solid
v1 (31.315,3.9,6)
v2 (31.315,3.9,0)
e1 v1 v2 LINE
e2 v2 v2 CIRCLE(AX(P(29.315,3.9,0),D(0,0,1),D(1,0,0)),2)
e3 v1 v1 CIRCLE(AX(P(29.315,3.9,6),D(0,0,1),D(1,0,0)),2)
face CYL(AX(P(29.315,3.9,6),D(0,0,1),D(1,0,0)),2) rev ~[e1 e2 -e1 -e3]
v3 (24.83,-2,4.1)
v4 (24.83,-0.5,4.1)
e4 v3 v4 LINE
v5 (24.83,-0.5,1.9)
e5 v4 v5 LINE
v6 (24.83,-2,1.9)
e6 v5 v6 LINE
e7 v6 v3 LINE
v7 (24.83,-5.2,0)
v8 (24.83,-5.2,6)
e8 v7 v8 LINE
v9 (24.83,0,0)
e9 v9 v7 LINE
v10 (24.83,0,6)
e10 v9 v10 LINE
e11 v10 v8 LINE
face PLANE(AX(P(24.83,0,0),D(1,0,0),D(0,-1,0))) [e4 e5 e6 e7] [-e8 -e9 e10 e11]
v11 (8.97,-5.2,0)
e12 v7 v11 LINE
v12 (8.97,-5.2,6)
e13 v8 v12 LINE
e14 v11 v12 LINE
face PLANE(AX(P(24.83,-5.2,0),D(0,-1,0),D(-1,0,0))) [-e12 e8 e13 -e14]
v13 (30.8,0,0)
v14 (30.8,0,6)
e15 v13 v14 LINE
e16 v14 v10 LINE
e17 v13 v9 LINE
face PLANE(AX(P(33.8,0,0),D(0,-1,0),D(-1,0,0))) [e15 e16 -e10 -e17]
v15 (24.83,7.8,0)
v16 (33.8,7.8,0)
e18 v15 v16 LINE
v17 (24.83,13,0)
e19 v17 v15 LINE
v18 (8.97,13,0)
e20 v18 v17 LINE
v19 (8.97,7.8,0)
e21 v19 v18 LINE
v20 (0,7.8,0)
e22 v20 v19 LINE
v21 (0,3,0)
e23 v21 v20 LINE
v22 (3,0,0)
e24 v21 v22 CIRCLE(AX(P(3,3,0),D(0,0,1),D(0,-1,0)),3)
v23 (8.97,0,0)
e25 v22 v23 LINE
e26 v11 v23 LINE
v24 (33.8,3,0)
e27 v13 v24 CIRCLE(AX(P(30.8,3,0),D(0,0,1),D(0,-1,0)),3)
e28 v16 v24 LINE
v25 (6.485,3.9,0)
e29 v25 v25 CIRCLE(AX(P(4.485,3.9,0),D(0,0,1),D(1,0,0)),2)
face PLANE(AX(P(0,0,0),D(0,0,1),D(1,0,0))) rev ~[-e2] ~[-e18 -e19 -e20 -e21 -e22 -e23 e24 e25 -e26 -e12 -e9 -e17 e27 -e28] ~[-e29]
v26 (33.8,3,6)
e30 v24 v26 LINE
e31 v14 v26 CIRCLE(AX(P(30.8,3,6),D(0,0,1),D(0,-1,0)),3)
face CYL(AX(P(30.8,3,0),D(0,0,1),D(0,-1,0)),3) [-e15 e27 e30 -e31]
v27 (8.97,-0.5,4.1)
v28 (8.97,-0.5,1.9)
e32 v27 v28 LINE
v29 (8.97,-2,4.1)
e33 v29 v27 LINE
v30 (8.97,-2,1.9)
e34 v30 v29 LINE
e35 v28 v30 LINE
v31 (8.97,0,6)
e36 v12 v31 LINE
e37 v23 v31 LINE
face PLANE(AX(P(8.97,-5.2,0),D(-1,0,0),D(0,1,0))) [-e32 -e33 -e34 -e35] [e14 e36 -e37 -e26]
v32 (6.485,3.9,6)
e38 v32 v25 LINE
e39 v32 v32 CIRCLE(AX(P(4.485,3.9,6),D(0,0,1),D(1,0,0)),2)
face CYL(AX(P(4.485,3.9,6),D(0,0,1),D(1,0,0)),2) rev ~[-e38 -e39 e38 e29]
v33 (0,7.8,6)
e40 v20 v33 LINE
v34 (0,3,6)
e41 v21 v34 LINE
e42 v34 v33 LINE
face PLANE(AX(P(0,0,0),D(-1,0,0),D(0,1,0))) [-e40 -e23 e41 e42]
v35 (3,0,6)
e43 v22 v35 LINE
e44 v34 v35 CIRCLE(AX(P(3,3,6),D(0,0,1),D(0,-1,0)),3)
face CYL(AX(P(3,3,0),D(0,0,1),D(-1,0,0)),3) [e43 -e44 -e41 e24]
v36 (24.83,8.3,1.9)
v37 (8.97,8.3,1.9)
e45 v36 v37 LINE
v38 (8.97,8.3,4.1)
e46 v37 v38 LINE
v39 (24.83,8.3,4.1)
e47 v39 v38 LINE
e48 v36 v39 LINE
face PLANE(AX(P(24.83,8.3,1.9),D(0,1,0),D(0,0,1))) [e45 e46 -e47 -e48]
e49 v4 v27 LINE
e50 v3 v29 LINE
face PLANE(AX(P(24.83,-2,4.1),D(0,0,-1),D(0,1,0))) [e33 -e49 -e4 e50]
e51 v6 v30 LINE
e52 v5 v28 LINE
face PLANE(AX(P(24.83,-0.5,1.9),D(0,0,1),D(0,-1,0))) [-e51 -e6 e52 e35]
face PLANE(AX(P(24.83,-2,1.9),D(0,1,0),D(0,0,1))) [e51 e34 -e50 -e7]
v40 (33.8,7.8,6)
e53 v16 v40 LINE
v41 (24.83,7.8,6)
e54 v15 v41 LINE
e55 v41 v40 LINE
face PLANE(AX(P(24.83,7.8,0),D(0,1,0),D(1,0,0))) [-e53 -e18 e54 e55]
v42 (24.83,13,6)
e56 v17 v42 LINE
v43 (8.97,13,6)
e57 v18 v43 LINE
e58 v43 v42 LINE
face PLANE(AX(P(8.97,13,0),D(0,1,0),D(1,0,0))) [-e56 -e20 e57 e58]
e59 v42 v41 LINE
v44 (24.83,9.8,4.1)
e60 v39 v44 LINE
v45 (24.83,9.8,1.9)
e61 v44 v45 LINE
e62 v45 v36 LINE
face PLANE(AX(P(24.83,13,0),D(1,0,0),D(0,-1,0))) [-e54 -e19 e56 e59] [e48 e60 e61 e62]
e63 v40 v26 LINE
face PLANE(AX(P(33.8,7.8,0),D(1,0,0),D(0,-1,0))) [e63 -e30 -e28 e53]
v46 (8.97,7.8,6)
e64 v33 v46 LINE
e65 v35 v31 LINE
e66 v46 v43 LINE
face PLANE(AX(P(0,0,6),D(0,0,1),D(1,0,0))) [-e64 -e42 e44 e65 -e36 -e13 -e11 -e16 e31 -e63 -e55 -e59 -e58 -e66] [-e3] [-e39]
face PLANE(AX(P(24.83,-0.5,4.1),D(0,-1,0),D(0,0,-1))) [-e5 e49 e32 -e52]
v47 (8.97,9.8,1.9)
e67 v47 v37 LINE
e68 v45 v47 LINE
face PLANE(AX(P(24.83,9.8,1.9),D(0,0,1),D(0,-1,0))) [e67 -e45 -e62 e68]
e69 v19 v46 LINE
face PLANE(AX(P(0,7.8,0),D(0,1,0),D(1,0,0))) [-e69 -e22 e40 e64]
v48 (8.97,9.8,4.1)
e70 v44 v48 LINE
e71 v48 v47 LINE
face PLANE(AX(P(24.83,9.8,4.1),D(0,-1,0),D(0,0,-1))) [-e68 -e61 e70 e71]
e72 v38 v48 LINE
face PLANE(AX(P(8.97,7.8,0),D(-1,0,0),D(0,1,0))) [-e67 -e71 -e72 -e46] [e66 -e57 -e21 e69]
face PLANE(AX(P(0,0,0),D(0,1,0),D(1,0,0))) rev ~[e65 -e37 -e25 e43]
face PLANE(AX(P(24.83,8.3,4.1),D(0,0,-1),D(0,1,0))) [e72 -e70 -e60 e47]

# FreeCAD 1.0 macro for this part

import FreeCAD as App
import Part
import Sketcher
Q = App.Units.Quantity


def edges_at(feature, points):
    """Names of the edges that pass closest to the given points."""
    edges = feature.Shape.Edges
    near = lambda p: min(range(len(edges)), key=lambda i: edges[i].distToShape(Part.Vertex(*p))[0])
    return sorted({f"Edge{near(p) + 1}" for p in points})

doc = App.newDocument("Part")
body = doc.addObject("PartDesign::Body", "Body")

sketch1 = body.newObject("Sketcher::SketchObject", "Sketch")
sketch1.AttachmentSupport = (doc.getObject("XY_Plane"), [""])
sketch1.MapMode = "FlatFace"
sketch1.addGeometry(Part.LineSegment(App.Vector(0, 8, 0), App.Vector(0, 0, 0)), False)
sketch1.addGeometry(Part.LineSegment(App.Vector(0, 0, 0), App.Vector(9, 0, 0)), False)
sketch1.addGeometry(Part.LineSegment(App.Vector(9, 0, 0), App.Vector(9, -5, 0)), False)
sketch1.addGeometry(Part.LineSegment(App.Vector(9, -5, 0), App.Vector(25, -5, 0)), False)
sketch1.addGeometry(Part.LineSegment(App.Vector(25, -5, 0), App.Vector(25, 0, 0)), False)
sketch1.addGeometry(Part.LineSegment(App.Vector(25, 0, 0), App.Vector(34, 0, 0)), False)
sketch1.addGeometry(Part.LineSegment(App.Vector(34, 0, 0), App.Vector(34, 8, 0)), False)
sketch1.addGeometry(Part.LineSegment(App.Vector(34, 8, 0), App.Vector(25, 8, 0)), False)
sketch1.addGeometry(Part.LineSegment(App.Vector(25, 8, 0), App.Vector(25, 13, 0)), False)
sketch1.addGeometry(Part.LineSegment(App.Vector(25, 13, 0), App.Vector(9, 13, 0)), False)
sketch1.addGeometry(Part.LineSegment(App.Vector(9, 13, 0), App.Vector(9, 8, 0)), False)
sketch1.addGeometry(Part.LineSegment(App.Vector(9, 8, 0), App.Vector(0, 8, 0)), False)
sketch1.addConstraint(Sketcher.Constraint("Coincident", 0, 2, 1, 1))
sketch1.addConstraint(Sketcher.Constraint("Coincident", 1, 2, 2, 1))
sketch1.addConstraint(Sketcher.Constraint("Coincident", 2, 2, 3, 1))
sketch1.addConstraint(Sketcher.Constraint("Coincident", 3, 2, 4, 1))
sketch1.addConstraint(Sketcher.Constraint("Coincident", 4, 2, 5, 1))
sketch1.addConstraint(Sketcher.Constraint("Coincident", 5, 2, 6, 1))
sketch1.addConstraint(Sketcher.Constraint("Coincident", 6, 2, 7, 1))
sketch1.addConstraint(Sketcher.Constraint("Coincident", 7, 2, 8, 1))
sketch1.addConstraint(Sketcher.Constraint("Coincident", 8, 2, 9, 1))
sketch1.addConstraint(Sketcher.Constraint("Coincident", 9, 2, 10, 1))
sketch1.addConstraint(Sketcher.Constraint("Coincident", 10, 2, 11, 1))
sketch1.addConstraint(Sketcher.Constraint("Coincident", 11, 2, 0, 1))
sketch1.addConstraint(Sketcher.Constraint("Vertical", 0))
sketch1.addConstraint(Sketcher.Constraint("Horizontal", 1))
sketch1.addConstraint(Sketcher.Constraint("Vertical", 2))
sketch1.addConstraint(Sketcher.Constraint("Horizontal", 3))
sketch1.addConstraint(Sketcher.Constraint("Vertical", 4))
sketch1.addConstraint(Sketcher.Constraint("Horizontal", 5))
sketch1.addConstraint(Sketcher.Constraint("Vertical", 6))
sketch1.addConstraint(Sketcher.Constraint("Horizontal", 7))
sketch1.addConstraint(Sketcher.Constraint("Vertical", 8))
sketch1.addConstraint(Sketcher.Constraint("Horizontal", 9))
sketch1.addConstraint(Sketcher.Constraint("Vertical", 10))
sketch1.addConstraint(Sketcher.Constraint("Horizontal", 11))
sketch1.addConstraint(Sketcher.Constraint("Coincident", 0, 2, -1, 1))
sketch1.addConstraint(Sketcher.Constraint("PointOnObject", 4, 2, -1))
sketch1.addConstraint(Sketcher.Constraint("Horizontal", 7, 2, 10, 2))
sketch1.addConstraint(Sketcher.Constraint("Vertical", 4, 2, 7, 2))
sketch1.addConstraint(Sketcher.Constraint("Vertical", 2, 2, 9, 2))
sketch1.addConstraint(Sketcher.Constraint("Equal", 1, 5))
sketch1.addConstraint(Sketcher.Constraint("Equal", 4, 8))
sketch1.addConstraint(Sketcher.Constraint("DistanceY", 0, 2, 0, 1, Q("7.8 mm")))
sketch1.addConstraint(Sketcher.Constraint("DistanceY", 2, 2, 2, 1, Q("5.2 mm")))
sketch1.addConstraint(Sketcher.Constraint("DistanceX", 1, 1, 1, 2, Q("8.97 mm")))
sketch1.addConstraint(Sketcher.Constraint("DistanceX", 3, 1, 3, 2, Q("15.86 mm")))
pad1 = body.newObject("PartDesign::Pad", "Pad")
pad1.Profile = sketch1
pad1.Length = 6

sketch2 = body.newObject("Sketcher::SketchObject", "Sketch001")
sketch2.AttachmentSupport = (doc.getObject("XY_Plane"), [""])
sketch2.MapMode = "FlatFace"
sketch2.AttachmentOffset = App.Placement(App.Vector(0, 0, 6), App.Rotation())
sketch2.addGeometry(Part.Circle(App.Vector(4.5, 3.9, 0), App.Vector(0, 0, 1), 2), False)
sketch2.addGeometry(Part.Circle(App.Vector(29.3, 3.9, 0), App.Vector(0, 0, 1), 2), False)
sketch2.addConstraint(Sketcher.Constraint("Equal", 0, 1))
sketch2.addConstraint(Sketcher.Constraint("Horizontal", 0, 3, 1, 3))
sketch2.addConstraint(Sketcher.Constraint("Diameter", 0, Q("4 mm")))
sketch2.addConstraint(Sketcher.Constraint("DistanceY", -1, 1, 0, 3, Q("3.9 mm")))
sketch2.addConstraint(Sketcher.Constraint("DistanceX", 0, 3, 1, 3, Q("24.83 mm")))
sketch2.addConstraint(Sketcher.Constraint("DistanceX", -1, 1, 0, 3, Q("4.485 mm")))
pocket1 = body.newObject("PartDesign::Pocket", "Pocket")
pocket1.Profile = sketch2
pocket1.Length = 7
doc.recompute()

fillet = body.newObject("PartDesign::Fillet", "Fillet")
fillet.Base = (pocket1, edges_at(pocket1, [(0, 0, 3)]))
fillet.Radius = 3
doc.recompute()

fillet2 = body.newObject("PartDesign::Fillet", "Fillet001")
fillet2.Base = (fillet, edges_at(fillet, [(33.8, 0, 3)]))
fillet2.Radius = 3

sketch3 = body.newObject("Sketcher::SketchObject", "Sketch002")
sketch3.AttachmentSupport = (doc.getObject("YZ_Plane"), [""])
sketch3.MapMode = "FlatFace"
sketch3.AttachmentOffset = App.Placement(App.Vector(0, 0, 24.83), App.Rotation())
sketch3.addGeometry(Part.LineSegment(App.Vector(9.8, 1.9, 0), App.Vector(9.8, 4.1, 0)), False)
sketch3.addGeometry(Part.LineSegment(App.Vector(9.8, 4.1, 0), App.Vector(8.3, 4.1, 0)), False)
sketch3.addGeometry(Part.LineSegment(App.Vector(8.3, 4.1, 0), App.Vector(8.3, 1.9, 0)), False)
sketch3.addGeometry(Part.LineSegment(App.Vector(8.3, 1.9, 0), App.Vector(9.8, 1.9, 0)), False)
sketch3.addGeometry(Part.LineSegment(App.Vector(-0.5, 1.9, 0), App.Vector(-0.5, 4.1, 0)), False)
sketch3.addGeometry(Part.LineSegment(App.Vector(-0.5, 4.1, 0), App.Vector(-2, 4.1, 0)), False)
sketch3.addGeometry(Part.LineSegment(App.Vector(-2, 4.1, 0), App.Vector(-2, 1.9, 0)), False)
sketch3.addGeometry(Part.LineSegment(App.Vector(-2, 1.9, 0), App.Vector(-0.5, 1.9, 0)), False)
sketch3.addConstraint(Sketcher.Constraint("Coincident", 0, 2, 1, 1))
sketch3.addConstraint(Sketcher.Constraint("Coincident", 1, 2, 2, 1))
sketch3.addConstraint(Sketcher.Constraint("Coincident", 2, 2, 3, 1))
sketch3.addConstraint(Sketcher.Constraint("Coincident", 3, 2, 0, 1))
sketch3.addConstraint(Sketcher.Constraint("Coincident", 4, 2, 5, 1))
sketch3.addConstraint(Sketcher.Constraint("Coincident", 5, 2, 6, 1))
sketch3.addConstraint(Sketcher.Constraint("Coincident", 6, 2, 7, 1))
sketch3.addConstraint(Sketcher.Constraint("Coincident", 7, 2, 4, 1))
sketch3.addConstraint(Sketcher.Constraint("Vertical", 0))
sketch3.addConstraint(Sketcher.Constraint("Horizontal", 1))
sketch3.addConstraint(Sketcher.Constraint("Vertical", 2))
sketch3.addConstraint(Sketcher.Constraint("Horizontal", 3))
sketch3.addConstraint(Sketcher.Constraint("Vertical", 4))
sketch3.addConstraint(Sketcher.Constraint("Horizontal", 5))
sketch3.addConstraint(Sketcher.Constraint("Vertical", 6))
sketch3.addConstraint(Sketcher.Constraint("Horizontal", 7))
sketch3.addConstraint(Sketcher.Constraint("Horizontal", 1, 2, 4, 2))
sketch3.addConstraint(Sketcher.Constraint("Horizontal", 3, 2, 6, 2))
sketch3.addConstraint(Sketcher.Constraint("Equal", 3, 5))
sketch3.addConstraint(Sketcher.Constraint("DistanceX", 1, 2, 1, 1, Q("1.5 mm")))
sketch3.addConstraint(Sketcher.Constraint("DistanceY", 0, 1, 0, 2, Q("2.2 mm")))
sketch3.addConstraint(Sketcher.Constraint("DistanceY", -1, 1, 2, 2, Q("1.9 mm")))
sketch3.addConstraint(Sketcher.Constraint("DistanceX", 4, 2, -1, 1, Q("0.5 mm")))
sketch3.addConstraint(Sketcher.Constraint("DistanceX", -1, 1, 0, 2, Q("9.8 mm")))
pocket2 = body.newObject("PartDesign::Pocket", "Pocket001")
pocket2.Profile = sketch3
pocket2.Length = 15.86

doc.recompute()
